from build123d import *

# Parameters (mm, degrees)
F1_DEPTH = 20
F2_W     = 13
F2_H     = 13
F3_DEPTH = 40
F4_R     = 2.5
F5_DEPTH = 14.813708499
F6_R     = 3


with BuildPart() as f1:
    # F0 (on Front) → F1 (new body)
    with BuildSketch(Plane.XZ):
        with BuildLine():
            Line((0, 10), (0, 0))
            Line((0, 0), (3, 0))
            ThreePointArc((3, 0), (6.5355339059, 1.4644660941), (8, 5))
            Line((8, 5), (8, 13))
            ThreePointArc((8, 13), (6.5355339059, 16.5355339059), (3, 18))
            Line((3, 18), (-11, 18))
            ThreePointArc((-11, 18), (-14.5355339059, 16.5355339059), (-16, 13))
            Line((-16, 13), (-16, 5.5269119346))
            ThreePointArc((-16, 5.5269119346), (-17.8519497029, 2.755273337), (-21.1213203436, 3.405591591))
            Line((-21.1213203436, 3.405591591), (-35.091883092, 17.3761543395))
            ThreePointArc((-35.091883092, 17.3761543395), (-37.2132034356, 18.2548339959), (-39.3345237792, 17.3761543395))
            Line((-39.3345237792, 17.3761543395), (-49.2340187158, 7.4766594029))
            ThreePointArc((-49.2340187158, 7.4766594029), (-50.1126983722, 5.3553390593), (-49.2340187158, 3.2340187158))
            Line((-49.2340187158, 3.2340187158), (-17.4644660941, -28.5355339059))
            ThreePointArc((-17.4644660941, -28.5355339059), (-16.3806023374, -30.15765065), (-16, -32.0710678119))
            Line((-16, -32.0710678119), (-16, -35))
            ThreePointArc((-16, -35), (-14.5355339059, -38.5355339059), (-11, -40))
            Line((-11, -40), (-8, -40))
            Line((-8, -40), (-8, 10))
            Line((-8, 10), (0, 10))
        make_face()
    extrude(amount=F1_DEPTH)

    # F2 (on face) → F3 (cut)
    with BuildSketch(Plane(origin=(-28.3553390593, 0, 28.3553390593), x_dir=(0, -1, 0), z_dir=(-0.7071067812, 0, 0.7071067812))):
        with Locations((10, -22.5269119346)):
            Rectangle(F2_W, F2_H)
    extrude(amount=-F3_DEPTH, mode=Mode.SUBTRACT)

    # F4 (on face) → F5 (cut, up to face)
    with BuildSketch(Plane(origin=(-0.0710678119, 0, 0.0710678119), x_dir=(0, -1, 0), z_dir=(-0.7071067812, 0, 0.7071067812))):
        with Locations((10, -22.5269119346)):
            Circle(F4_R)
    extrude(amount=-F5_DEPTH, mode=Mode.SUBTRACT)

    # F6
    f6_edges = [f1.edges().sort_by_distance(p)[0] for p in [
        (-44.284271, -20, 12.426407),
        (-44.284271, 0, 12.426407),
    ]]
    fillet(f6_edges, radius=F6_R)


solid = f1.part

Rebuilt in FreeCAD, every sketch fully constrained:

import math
import FreeCAD as App
import Part
import Sketcher
from FreeCAD import Vector
Q = App.Units.Quantity


def edges_at(feature, points):
    """Names of the edges that pass closest to the given points."""
    edges = feature.Shape.Edges
    near = lambda p: min(range(len(edges)), key=lambda i: edges[i].distToShape(Part.Vertex(*p))[0])
    return sorted({f"Edge{near(p) + 1}" for p in points})


def add_polygon(sketch, points):
    """Adds a closed chain of lines whose ends are joined by coincident constraints."""
    first, n = sketch.GeometryCount, len(points)
    for a, b in zip(points, points[1:] + points[:1]):
        sketch.addGeometry(Part.LineSegment(App.Vector(*a, 0), App.Vector(*b, 0)), False)
    for i in range(n):
        sketch.addConstraint(Sketcher.Constraint("Coincident", first + i, 2, first + (i + 1) % n, 1))

doc = App.newDocument("Part")
params = doc.addObject("Spreadsheet::Sheet", "Params")
for row, (alias, value) in enumerate([
    ("sketch1_radius", "5 mm"),
    ("sketch1_radius2", "3 mm"),
    ("sketch1_width", "3 mm"),
    ("sketch1_width2", "14 mm"),
    ("sketch1_height", "10 mm"),
    ("pad1_length", "20 mm"),
    ("sketch2_width", "13 mm"),
    ("pocket1_length", "40 mm"),
    ("sketch3_diameter", "5 mm"),
    ("pocket2_length", "14.813708 mm"),
    ("fillet_radius", "3 mm"),
], start=1):
    params.set(f"A{row}", alias)
    params.set(f"B{row}", "=" + value)
    params.setAlias(f"B{row}", alias)

body = doc.addObject("PartDesign::Body", "Body")

sketch1 = body.newObject("Sketcher::SketchObject", "Sketch")
sketch1.AttachmentSupport = (doc.getObject("XZ_Plane"), [""])
sketch1.MapMode = "FlatFace"
sketch1.addGeometry(Part.LineSegment(Vector(0, 10, 0), Vector(0, 0, 0)), False)
sketch1.addGeometry(Part.LineSegment(Vector(0, 0, 0), Vector(3, 0, 0)), False)
sketch1.addGeometry(Part.ArcOfCircle(Part.Circle(Vector(3, 5, 0), Vector(0, 0, 1), 5), math.radians(-90), math.radians(0)), False)
sketch1.addGeometry(Part.LineSegment(Vector(8, 5, 0), Vector(8, 13, 0)), False)
sketch1.addGeometry(Part.ArcOfCircle(Part.Circle(Vector(3, 13, 0), Vector(0, 0, 1), 5), math.radians(0), math.radians(90)), False)
sketch1.addGeometry(Part.LineSegment(Vector(3, 18, 0), Vector(-11, 18, 0)), False)
sketch1.addGeometry(Part.ArcOfCircle(Part.Circle(Vector(-11, 13, 0), Vector(0, 0, 1), 5), math.radians(90), math.radians(180)), False)
sketch1.addGeometry(Part.LineSegment(Vector(-16, 13, 0), Vector(-16, 5.5, 0)), False)
sketch1.addGeometry(Part.ArcOfCircle(Part.Circle(Vector(-19, 5.5, 0), Vector(0, 0, 1), 3), math.radians(-135), math.radians(0)), False)
sketch1.addGeometry(Part.LineSegment(Vector(-21.1, 3.4, 0), Vector(-35.1, 17.4, 0)), False)
sketch1.addGeometry(Part.ArcOfCircle(Part.Circle(Vector(-37.2, 15.3, 0), Vector(0, 0, 1), 3), math.radians(45), math.radians(135)), False)
sketch1.addGeometry(Part.LineSegment(Vector(-39.3, 17.4, 0), Vector(-49.2, 7.5, 0)), False)
sketch1.addGeometry(Part.ArcOfCircle(Part.Circle(Vector(-47.1, 5.4, 0), Vector(0, 0, 1), 3), math.radians(135), math.radians(225)), False)
sketch1.addGeometry(Part.LineSegment(Vector(-49.2, 3.2, 0), Vector(-17.5, -28.5, 0)), False)
sketch1.addGeometry(Part.ArcOfCircle(Part.Circle(Vector(-21, -32.1, 0), Vector(0, 0, 1), 5), math.radians(0), math.radians(45)), False)
sketch1.addGeometry(Part.LineSegment(Vector(-16, -32.1, 0), Vector(-16, -35, 0)), False)
sketch1.addGeometry(Part.ArcOfCircle(Part.Circle(Vector(-11, -35, 0), Vector(0, 0, 1), 5), math.radians(180), math.radians(270)), False)
sketch1.addGeometry(Part.LineSegment(Vector(-11, -40, 0), Vector(-8, -40, 0)), False)
sketch1.addGeometry(Part.LineSegment(Vector(-8, -40, 0), Vector(-8, 10, 0)), False)
sketch1.addGeometry(Part.LineSegment(Vector(-8, 10, 0), Vector(0, 10, 0)), False)
sketch1.addConstraint(Sketcher.Constraint("Coincident", 0, 2, 1, 1))
sketch1.addConstraint(Sketcher.Constraint("Tangent", 1, 2, 2, 1))
sketch1.addConstraint(Sketcher.Constraint("Tangent", 2, 2, 3, 1))
sketch1.addConstraint(Sketcher.Constraint("Tangent", 3, 2, 4, 1))
sketch1.addConstraint(Sketcher.Constraint("Tangent", 4, 2, 5, 1))
sketch1.addConstraint(Sketcher.Constraint("Tangent", 5, 2, 6, 1))
sketch1.addConstraint(Sketcher.Constraint("Tangent", 6, 2, 7, 1))
sketch1.addConstraint(Sketcher.Constraint("Tangent", 7, 2, 8, 2))
sketch1.addConstraint(Sketcher.Constraint("Tangent", 8, 1, 9, 1))
sketch1.addConstraint(Sketcher.Constraint("Tangent", 9, 2, 10, 1))
sketch1.addConstraint(Sketcher.Constraint("Tangent", 10, 2, 11, 1))
sketch1.addConstraint(Sketcher.Constraint("Tangent", 11, 2, 12, 1))
sketch1.addConstraint(Sketcher.Constraint("Tangent", 12, 2, 13, 1))
sketch1.addConstraint(Sketcher.Constraint("Tangent", 13, 2, 14, 2))
sketch1.addConstraint(Sketcher.Constraint("Tangent", 14, 1, 15, 1))
sketch1.addConstraint(Sketcher.Constraint("Tangent", 15, 2, 16, 1))
sketch1.addConstraint(Sketcher.Constraint("Tangent", 16, 2, 17, 1))
sketch1.addConstraint(Sketcher.Constraint("Coincident", 17, 2, 18, 1))
sketch1.addConstraint(Sketcher.Constraint("Coincident", 18, 2, 19, 1))
sketch1.addConstraint(Sketcher.Constraint("Coincident", 19, 2, 0, 1))
sketch1.addConstraint(Sketcher.Constraint("Vertical", 0))
sketch1.addConstraint(Sketcher.Constraint("Horizontal", 1))
sketch1.addConstraint(Sketcher.Constraint("Vertical", 3))
sketch1.addConstraint(Sketcher.Constraint("Horizontal", 5))
sketch1.addConstraint(Sketcher.Constraint("Vertical", 7))
sketch1.addConstraint(Sketcher.Constraint("Vertical", 15))
sketch1.addConstraint(Sketcher.Constraint("Horizontal", 17))
sketch1.addConstraint(Sketcher.Constraint("Vertical", 18))
sketch1.addConstraint(Sketcher.Constraint("Horizontal", 19))
sketch1.addConstraint(Sketcher.Constraint("Coincident", 0, 2, -1, 1))
sketch1.addConstraint(Sketcher.Constraint("Equal", 2, 4))
sketch1.addConstraint(Sketcher.Constraint("Equal", 4, 6))
sketch1.addConstraint(Sketcher.Constraint("Equal", 8, 10))
sketch1.addConstraint(Sketcher.Constraint("Equal", 10, 12))
sketch1.addConstraint(Sketcher.Constraint("Equal", 6, 14))
sketch1.addConstraint(Sketcher.Constraint("Equal", 14, 16))
sketch1.addConstraint(Sketcher.Constraint("Perpendicular", 9, 11))
sketch1.addConstraint(Sketcher.Constraint("Perpendicular", 11, 13))
sketch1.addConstraint(Sketcher.Constraint("Horizontal", 9, 2, 10, 2))
sketch1.addConstraint(Sketcher.Constraint("Vertical", 6, 3, 16, 3))
sketch1.addConstraint(Sketcher.Constraint("Equal", 1, 17))
sketch1.addConstraint(Sketcher.Constraint("Equal", 19, 3))
sketch1.addConstraint(Sketcher.Constraint("Radius", 2, Q("5 mm")))
sketch1.addConstraint(Sketcher.Constraint("Radius", 8, Q("3 mm")))
sketch1.addConstraint(Sketcher.Constraint("DistanceX", 1, 1, 1, 2, Q("3 mm")))
sketch1.addConstraint(Sketcher.Constraint("DistanceX", 5, 2, 5, 1, Q("14 mm")))
sketch1.addConstraint(Sketcher.Constraint("DistanceY", 0, 2, 0, 1, Q("10 mm")))
sketch1.addConstraint(Sketcher.Constraint("DistanceY", 18, 1, 18, 2, Q("50 mm")))
sketch1.addConstraint(Sketcher.Constraint("Distance", 11, Q("14 mm")))
sketch1.addConstraint(Sketcher.Constraint("DistanceY", 7, 2, 7, 1, Q("7.473088 mm")))
sketch1.addConstraint(Sketcher.Constraint("DistanceX", 12, 3, -1, 1, Q("47.112698 mm")))
sketch1.setExpression("Constraints[42]", "Params.sketch1_radius")
sketch1.setExpression("Constraints[43]", "Params.sketch1_radius2")
sketch1.setExpression("Constraints[44]", "Params.sketch1_width")
sketch1.setExpression("Constraints[45]", "Params.sketch1_width2")
sketch1.setExpression("Constraints[46]", "Params.sketch1_height")
pad1 = body.newObject("PartDesign::Pad", "Pad")
pad1.Profile = sketch1
pad1.setExpression("Length", "Params.pad1_length")

sketch2 = body.newObject("Sketcher::SketchObject", "Sketch001")
sketch2.Placement = App.Placement(Vector(-28.355339, 0, 28.355339), App.Rotation(Vector(0, -1, 0), Vector(0.707106781, 0, 0.707106781), Vector(-0.707106781, 0, 0.707106781), "ZXY"))
add_polygon(sketch2, [(4, -16), (4, -29), (16, -29), (16, -16)])
sketch2.addConstraint(Sketcher.Constraint("Vertical", 0))
sketch2.addConstraint(Sketcher.Constraint("Horizontal", 1))
sketch2.addConstraint(Sketcher.Constraint("Vertical", 2))
sketch2.addConstraint(Sketcher.Constraint("Horizontal", 3))
sketch2.addConstraint(Sketcher.Constraint("Equal", 3, 0))
sketch2.addConstraint(Sketcher.Constraint("DistanceX", 1, 1, 1, 2, Q("13 mm")))
sketch2.addConstraint(Sketcher.Constraint("DistanceX", -1, 1, 0, 2, Q("3.5 mm")))
sketch2.addConstraint(Sketcher.Constraint("DistanceY", 0, 2, -1, 1, Q("29.026912 mm")))
sketch2.setExpression("Constraints[9]", "Params.sketch2_width")
pocket1 = body.newObject("PartDesign::Pocket", "Pocket")
pocket1.Profile = sketch2
pocket1.setExpression("Length", "Params.pocket1_length")

sketch3 = body.newObject("Sketcher::SketchObject", "Sketch002")
sketch3.Placement = App.Placement(Vector(-0.071068, 0, 0.071068), App.Rotation(Vector(0, -1, 0), Vector(0.707106781, 0, 0.707106781), Vector(-0.707106781, 0, 0.707106781), "ZXY"))
sketch3.addGeometry(Part.Circle(Vector(10, -22.5, 0), Vector(0, 0, 1), 2.5), False)
sketch3.addConstraint(Sketcher.Constraint("Diameter", 0, Q("5 mm")))
sketch3.addConstraint(Sketcher.Constraint("DistanceX", -1, 1, 0, 3, Q("10 mm")))
sketch3.addConstraint(Sketcher.Constraint("DistanceY", 0, 3, -1, 1, Q("22.526912 mm")))
sketch3.setExpression("Constraints[0]", "Params.sketch3_diameter")
pocket2 = body.newObject("PartDesign::Pocket", "Pocket001")
pocket2.Profile = sketch3
pocket2.setExpression("Length", "Params.pocket2_length")
doc.recompute()

fillet = body.newObject("PartDesign::Fillet", "Fillet")
fillet.Base = (pocket2, edges_at(pocket2, [(-44.284, -20, 12.426), (-44.284, 0, 12.426)]))
fillet.setExpression("Radius", "Params.fillet_radius")

doc.recompute()
